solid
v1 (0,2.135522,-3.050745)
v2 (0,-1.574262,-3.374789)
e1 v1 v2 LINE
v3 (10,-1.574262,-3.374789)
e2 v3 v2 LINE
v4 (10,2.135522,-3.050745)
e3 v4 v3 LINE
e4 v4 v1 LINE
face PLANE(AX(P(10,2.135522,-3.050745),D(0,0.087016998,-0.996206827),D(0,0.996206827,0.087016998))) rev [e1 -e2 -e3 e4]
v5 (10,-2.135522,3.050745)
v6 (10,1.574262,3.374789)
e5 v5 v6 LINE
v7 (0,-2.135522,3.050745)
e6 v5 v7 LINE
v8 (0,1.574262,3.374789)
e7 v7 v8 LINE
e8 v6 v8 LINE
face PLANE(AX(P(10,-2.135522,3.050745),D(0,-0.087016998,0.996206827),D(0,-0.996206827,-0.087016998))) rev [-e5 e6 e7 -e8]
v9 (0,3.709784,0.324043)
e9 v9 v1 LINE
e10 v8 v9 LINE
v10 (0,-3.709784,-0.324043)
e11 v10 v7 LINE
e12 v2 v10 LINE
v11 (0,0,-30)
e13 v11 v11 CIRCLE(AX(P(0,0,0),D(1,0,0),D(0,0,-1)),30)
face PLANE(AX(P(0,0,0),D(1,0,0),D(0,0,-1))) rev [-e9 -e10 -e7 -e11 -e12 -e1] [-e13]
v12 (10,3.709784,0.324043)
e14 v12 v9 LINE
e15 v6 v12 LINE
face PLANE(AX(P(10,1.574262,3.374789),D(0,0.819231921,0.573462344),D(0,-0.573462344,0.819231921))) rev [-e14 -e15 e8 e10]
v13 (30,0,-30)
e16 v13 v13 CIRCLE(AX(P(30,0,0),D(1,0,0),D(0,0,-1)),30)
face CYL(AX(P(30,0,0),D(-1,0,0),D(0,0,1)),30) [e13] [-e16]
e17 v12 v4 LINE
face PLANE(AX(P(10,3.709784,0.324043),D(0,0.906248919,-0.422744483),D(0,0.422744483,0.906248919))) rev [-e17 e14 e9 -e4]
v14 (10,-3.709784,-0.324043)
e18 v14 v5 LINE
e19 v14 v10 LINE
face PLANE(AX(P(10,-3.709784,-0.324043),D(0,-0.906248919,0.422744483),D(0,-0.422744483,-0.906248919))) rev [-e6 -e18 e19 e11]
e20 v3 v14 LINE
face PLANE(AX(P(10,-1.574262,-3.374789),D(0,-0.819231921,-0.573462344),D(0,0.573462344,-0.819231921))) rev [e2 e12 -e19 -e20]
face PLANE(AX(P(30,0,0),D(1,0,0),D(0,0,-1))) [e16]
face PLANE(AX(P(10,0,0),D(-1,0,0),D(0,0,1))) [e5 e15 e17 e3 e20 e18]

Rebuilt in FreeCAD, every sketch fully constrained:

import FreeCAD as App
import Part
import Sketcher
from FreeCAD import Vector
Q = App.Units.Quantity


def add_polygon(sketch, points):
    """Adds a closed chain of lines whose ends are joined by coincident constraints."""
    first, n = sketch.GeometryCount, len(points)
    for a, b in zip(points, points[1:] + points[:1]):
        sketch.addGeometry(Part.LineSegment(App.Vector(*a, 0), App.Vector(*b, 0)), False)
    for i in range(n):
        sketch.addConstraint(Sketcher.Constraint("Coincident", first + i, 2, first + (i + 1) % n, 1))

doc = App.newDocument("Part")
body = doc.addObject("PartDesign::Body", "Body")

# Sketch on YZ plane
sketch1 = doc.addObject("Sketcher::SketchObject", "Sketch")
body.addObject(sketch1)
sketch1.AttachmentSupport = (doc.YZ_Plane, [""])
sketch1.MapMode = "FlatFace"
sketch1.addGeometry(Part.Circle(Vector(0, 0, 0), Vector(0, 0, 1), 30), False)
sketch1.addConstraint(Sketcher.Constraint("Coincident", 0, 3, -1, 1))
sketch1.addConstraint(Sketcher.Constraint("Diameter", 0, Q("60 mm")))
pad1 = doc.addObject("PartDesign::Pad", "Pad")
body.addObject(pad1)
pad1.Profile = sketch1
pad1.Length = 30

# Sketch on YZ plane
sketch2 = doc.addObject("Sketcher::SketchObject", "Sketch001")
body.addObject(sketch2)
sketch2.AttachmentSupport = (doc.YZ_Plane, [""])
sketch2.MapMode = "FlatFace"
add_polygon(sketch2, [(-2.1, 3.1), (1.6, 3.4), (3.7, 0.3), (2.1, -3.1), (-1.6, -3.4), (-3.7, -0.3)])  # lines 0-5
sketch2.addConstraint(Sketcher.Constraint("Symmetric", 0, 2, 3, 2, -1, 1))
sketch2.addConstraint(Sketcher.Constraint("Symmetric", 1, 2, 4, 2, -1, 1))
sketch2.addConstraint(Sketcher.Constraint("Symmetric", 2, 2, 5, 2, -1, 1))
sketch2.addConstraint(Sketcher.Constraint("Equal", 0, 1))
sketch2.addConstraint(Sketcher.Constraint("Equal", 1, 2))
sketch2.addConstraint(Sketcher.Constraint("DistanceY", 2, 2, 4, 2, Q("2.726702 mm")))
sketch2.addConstraint(Sketcher.Constraint("Distance", 0, Q("3.723909 mm")))
sketch2.addConstraint(Sketcher.Constraint("DistanceY", -1, 1, 0, 2, Q("3.374789 mm")))
sketch2.addConstraint(Sketcher.Constraint("DistanceX", -1, 1, 2, 2, Q("2.135522 mm")))
pocket1 = doc.addObject("PartDesign::Pocket", "Pocket")
body.addObject(pocket1)
pocket1.Profile = sketch2
pocket1.Length = 10
pocket1.Reversed = True

doc.recompute()
